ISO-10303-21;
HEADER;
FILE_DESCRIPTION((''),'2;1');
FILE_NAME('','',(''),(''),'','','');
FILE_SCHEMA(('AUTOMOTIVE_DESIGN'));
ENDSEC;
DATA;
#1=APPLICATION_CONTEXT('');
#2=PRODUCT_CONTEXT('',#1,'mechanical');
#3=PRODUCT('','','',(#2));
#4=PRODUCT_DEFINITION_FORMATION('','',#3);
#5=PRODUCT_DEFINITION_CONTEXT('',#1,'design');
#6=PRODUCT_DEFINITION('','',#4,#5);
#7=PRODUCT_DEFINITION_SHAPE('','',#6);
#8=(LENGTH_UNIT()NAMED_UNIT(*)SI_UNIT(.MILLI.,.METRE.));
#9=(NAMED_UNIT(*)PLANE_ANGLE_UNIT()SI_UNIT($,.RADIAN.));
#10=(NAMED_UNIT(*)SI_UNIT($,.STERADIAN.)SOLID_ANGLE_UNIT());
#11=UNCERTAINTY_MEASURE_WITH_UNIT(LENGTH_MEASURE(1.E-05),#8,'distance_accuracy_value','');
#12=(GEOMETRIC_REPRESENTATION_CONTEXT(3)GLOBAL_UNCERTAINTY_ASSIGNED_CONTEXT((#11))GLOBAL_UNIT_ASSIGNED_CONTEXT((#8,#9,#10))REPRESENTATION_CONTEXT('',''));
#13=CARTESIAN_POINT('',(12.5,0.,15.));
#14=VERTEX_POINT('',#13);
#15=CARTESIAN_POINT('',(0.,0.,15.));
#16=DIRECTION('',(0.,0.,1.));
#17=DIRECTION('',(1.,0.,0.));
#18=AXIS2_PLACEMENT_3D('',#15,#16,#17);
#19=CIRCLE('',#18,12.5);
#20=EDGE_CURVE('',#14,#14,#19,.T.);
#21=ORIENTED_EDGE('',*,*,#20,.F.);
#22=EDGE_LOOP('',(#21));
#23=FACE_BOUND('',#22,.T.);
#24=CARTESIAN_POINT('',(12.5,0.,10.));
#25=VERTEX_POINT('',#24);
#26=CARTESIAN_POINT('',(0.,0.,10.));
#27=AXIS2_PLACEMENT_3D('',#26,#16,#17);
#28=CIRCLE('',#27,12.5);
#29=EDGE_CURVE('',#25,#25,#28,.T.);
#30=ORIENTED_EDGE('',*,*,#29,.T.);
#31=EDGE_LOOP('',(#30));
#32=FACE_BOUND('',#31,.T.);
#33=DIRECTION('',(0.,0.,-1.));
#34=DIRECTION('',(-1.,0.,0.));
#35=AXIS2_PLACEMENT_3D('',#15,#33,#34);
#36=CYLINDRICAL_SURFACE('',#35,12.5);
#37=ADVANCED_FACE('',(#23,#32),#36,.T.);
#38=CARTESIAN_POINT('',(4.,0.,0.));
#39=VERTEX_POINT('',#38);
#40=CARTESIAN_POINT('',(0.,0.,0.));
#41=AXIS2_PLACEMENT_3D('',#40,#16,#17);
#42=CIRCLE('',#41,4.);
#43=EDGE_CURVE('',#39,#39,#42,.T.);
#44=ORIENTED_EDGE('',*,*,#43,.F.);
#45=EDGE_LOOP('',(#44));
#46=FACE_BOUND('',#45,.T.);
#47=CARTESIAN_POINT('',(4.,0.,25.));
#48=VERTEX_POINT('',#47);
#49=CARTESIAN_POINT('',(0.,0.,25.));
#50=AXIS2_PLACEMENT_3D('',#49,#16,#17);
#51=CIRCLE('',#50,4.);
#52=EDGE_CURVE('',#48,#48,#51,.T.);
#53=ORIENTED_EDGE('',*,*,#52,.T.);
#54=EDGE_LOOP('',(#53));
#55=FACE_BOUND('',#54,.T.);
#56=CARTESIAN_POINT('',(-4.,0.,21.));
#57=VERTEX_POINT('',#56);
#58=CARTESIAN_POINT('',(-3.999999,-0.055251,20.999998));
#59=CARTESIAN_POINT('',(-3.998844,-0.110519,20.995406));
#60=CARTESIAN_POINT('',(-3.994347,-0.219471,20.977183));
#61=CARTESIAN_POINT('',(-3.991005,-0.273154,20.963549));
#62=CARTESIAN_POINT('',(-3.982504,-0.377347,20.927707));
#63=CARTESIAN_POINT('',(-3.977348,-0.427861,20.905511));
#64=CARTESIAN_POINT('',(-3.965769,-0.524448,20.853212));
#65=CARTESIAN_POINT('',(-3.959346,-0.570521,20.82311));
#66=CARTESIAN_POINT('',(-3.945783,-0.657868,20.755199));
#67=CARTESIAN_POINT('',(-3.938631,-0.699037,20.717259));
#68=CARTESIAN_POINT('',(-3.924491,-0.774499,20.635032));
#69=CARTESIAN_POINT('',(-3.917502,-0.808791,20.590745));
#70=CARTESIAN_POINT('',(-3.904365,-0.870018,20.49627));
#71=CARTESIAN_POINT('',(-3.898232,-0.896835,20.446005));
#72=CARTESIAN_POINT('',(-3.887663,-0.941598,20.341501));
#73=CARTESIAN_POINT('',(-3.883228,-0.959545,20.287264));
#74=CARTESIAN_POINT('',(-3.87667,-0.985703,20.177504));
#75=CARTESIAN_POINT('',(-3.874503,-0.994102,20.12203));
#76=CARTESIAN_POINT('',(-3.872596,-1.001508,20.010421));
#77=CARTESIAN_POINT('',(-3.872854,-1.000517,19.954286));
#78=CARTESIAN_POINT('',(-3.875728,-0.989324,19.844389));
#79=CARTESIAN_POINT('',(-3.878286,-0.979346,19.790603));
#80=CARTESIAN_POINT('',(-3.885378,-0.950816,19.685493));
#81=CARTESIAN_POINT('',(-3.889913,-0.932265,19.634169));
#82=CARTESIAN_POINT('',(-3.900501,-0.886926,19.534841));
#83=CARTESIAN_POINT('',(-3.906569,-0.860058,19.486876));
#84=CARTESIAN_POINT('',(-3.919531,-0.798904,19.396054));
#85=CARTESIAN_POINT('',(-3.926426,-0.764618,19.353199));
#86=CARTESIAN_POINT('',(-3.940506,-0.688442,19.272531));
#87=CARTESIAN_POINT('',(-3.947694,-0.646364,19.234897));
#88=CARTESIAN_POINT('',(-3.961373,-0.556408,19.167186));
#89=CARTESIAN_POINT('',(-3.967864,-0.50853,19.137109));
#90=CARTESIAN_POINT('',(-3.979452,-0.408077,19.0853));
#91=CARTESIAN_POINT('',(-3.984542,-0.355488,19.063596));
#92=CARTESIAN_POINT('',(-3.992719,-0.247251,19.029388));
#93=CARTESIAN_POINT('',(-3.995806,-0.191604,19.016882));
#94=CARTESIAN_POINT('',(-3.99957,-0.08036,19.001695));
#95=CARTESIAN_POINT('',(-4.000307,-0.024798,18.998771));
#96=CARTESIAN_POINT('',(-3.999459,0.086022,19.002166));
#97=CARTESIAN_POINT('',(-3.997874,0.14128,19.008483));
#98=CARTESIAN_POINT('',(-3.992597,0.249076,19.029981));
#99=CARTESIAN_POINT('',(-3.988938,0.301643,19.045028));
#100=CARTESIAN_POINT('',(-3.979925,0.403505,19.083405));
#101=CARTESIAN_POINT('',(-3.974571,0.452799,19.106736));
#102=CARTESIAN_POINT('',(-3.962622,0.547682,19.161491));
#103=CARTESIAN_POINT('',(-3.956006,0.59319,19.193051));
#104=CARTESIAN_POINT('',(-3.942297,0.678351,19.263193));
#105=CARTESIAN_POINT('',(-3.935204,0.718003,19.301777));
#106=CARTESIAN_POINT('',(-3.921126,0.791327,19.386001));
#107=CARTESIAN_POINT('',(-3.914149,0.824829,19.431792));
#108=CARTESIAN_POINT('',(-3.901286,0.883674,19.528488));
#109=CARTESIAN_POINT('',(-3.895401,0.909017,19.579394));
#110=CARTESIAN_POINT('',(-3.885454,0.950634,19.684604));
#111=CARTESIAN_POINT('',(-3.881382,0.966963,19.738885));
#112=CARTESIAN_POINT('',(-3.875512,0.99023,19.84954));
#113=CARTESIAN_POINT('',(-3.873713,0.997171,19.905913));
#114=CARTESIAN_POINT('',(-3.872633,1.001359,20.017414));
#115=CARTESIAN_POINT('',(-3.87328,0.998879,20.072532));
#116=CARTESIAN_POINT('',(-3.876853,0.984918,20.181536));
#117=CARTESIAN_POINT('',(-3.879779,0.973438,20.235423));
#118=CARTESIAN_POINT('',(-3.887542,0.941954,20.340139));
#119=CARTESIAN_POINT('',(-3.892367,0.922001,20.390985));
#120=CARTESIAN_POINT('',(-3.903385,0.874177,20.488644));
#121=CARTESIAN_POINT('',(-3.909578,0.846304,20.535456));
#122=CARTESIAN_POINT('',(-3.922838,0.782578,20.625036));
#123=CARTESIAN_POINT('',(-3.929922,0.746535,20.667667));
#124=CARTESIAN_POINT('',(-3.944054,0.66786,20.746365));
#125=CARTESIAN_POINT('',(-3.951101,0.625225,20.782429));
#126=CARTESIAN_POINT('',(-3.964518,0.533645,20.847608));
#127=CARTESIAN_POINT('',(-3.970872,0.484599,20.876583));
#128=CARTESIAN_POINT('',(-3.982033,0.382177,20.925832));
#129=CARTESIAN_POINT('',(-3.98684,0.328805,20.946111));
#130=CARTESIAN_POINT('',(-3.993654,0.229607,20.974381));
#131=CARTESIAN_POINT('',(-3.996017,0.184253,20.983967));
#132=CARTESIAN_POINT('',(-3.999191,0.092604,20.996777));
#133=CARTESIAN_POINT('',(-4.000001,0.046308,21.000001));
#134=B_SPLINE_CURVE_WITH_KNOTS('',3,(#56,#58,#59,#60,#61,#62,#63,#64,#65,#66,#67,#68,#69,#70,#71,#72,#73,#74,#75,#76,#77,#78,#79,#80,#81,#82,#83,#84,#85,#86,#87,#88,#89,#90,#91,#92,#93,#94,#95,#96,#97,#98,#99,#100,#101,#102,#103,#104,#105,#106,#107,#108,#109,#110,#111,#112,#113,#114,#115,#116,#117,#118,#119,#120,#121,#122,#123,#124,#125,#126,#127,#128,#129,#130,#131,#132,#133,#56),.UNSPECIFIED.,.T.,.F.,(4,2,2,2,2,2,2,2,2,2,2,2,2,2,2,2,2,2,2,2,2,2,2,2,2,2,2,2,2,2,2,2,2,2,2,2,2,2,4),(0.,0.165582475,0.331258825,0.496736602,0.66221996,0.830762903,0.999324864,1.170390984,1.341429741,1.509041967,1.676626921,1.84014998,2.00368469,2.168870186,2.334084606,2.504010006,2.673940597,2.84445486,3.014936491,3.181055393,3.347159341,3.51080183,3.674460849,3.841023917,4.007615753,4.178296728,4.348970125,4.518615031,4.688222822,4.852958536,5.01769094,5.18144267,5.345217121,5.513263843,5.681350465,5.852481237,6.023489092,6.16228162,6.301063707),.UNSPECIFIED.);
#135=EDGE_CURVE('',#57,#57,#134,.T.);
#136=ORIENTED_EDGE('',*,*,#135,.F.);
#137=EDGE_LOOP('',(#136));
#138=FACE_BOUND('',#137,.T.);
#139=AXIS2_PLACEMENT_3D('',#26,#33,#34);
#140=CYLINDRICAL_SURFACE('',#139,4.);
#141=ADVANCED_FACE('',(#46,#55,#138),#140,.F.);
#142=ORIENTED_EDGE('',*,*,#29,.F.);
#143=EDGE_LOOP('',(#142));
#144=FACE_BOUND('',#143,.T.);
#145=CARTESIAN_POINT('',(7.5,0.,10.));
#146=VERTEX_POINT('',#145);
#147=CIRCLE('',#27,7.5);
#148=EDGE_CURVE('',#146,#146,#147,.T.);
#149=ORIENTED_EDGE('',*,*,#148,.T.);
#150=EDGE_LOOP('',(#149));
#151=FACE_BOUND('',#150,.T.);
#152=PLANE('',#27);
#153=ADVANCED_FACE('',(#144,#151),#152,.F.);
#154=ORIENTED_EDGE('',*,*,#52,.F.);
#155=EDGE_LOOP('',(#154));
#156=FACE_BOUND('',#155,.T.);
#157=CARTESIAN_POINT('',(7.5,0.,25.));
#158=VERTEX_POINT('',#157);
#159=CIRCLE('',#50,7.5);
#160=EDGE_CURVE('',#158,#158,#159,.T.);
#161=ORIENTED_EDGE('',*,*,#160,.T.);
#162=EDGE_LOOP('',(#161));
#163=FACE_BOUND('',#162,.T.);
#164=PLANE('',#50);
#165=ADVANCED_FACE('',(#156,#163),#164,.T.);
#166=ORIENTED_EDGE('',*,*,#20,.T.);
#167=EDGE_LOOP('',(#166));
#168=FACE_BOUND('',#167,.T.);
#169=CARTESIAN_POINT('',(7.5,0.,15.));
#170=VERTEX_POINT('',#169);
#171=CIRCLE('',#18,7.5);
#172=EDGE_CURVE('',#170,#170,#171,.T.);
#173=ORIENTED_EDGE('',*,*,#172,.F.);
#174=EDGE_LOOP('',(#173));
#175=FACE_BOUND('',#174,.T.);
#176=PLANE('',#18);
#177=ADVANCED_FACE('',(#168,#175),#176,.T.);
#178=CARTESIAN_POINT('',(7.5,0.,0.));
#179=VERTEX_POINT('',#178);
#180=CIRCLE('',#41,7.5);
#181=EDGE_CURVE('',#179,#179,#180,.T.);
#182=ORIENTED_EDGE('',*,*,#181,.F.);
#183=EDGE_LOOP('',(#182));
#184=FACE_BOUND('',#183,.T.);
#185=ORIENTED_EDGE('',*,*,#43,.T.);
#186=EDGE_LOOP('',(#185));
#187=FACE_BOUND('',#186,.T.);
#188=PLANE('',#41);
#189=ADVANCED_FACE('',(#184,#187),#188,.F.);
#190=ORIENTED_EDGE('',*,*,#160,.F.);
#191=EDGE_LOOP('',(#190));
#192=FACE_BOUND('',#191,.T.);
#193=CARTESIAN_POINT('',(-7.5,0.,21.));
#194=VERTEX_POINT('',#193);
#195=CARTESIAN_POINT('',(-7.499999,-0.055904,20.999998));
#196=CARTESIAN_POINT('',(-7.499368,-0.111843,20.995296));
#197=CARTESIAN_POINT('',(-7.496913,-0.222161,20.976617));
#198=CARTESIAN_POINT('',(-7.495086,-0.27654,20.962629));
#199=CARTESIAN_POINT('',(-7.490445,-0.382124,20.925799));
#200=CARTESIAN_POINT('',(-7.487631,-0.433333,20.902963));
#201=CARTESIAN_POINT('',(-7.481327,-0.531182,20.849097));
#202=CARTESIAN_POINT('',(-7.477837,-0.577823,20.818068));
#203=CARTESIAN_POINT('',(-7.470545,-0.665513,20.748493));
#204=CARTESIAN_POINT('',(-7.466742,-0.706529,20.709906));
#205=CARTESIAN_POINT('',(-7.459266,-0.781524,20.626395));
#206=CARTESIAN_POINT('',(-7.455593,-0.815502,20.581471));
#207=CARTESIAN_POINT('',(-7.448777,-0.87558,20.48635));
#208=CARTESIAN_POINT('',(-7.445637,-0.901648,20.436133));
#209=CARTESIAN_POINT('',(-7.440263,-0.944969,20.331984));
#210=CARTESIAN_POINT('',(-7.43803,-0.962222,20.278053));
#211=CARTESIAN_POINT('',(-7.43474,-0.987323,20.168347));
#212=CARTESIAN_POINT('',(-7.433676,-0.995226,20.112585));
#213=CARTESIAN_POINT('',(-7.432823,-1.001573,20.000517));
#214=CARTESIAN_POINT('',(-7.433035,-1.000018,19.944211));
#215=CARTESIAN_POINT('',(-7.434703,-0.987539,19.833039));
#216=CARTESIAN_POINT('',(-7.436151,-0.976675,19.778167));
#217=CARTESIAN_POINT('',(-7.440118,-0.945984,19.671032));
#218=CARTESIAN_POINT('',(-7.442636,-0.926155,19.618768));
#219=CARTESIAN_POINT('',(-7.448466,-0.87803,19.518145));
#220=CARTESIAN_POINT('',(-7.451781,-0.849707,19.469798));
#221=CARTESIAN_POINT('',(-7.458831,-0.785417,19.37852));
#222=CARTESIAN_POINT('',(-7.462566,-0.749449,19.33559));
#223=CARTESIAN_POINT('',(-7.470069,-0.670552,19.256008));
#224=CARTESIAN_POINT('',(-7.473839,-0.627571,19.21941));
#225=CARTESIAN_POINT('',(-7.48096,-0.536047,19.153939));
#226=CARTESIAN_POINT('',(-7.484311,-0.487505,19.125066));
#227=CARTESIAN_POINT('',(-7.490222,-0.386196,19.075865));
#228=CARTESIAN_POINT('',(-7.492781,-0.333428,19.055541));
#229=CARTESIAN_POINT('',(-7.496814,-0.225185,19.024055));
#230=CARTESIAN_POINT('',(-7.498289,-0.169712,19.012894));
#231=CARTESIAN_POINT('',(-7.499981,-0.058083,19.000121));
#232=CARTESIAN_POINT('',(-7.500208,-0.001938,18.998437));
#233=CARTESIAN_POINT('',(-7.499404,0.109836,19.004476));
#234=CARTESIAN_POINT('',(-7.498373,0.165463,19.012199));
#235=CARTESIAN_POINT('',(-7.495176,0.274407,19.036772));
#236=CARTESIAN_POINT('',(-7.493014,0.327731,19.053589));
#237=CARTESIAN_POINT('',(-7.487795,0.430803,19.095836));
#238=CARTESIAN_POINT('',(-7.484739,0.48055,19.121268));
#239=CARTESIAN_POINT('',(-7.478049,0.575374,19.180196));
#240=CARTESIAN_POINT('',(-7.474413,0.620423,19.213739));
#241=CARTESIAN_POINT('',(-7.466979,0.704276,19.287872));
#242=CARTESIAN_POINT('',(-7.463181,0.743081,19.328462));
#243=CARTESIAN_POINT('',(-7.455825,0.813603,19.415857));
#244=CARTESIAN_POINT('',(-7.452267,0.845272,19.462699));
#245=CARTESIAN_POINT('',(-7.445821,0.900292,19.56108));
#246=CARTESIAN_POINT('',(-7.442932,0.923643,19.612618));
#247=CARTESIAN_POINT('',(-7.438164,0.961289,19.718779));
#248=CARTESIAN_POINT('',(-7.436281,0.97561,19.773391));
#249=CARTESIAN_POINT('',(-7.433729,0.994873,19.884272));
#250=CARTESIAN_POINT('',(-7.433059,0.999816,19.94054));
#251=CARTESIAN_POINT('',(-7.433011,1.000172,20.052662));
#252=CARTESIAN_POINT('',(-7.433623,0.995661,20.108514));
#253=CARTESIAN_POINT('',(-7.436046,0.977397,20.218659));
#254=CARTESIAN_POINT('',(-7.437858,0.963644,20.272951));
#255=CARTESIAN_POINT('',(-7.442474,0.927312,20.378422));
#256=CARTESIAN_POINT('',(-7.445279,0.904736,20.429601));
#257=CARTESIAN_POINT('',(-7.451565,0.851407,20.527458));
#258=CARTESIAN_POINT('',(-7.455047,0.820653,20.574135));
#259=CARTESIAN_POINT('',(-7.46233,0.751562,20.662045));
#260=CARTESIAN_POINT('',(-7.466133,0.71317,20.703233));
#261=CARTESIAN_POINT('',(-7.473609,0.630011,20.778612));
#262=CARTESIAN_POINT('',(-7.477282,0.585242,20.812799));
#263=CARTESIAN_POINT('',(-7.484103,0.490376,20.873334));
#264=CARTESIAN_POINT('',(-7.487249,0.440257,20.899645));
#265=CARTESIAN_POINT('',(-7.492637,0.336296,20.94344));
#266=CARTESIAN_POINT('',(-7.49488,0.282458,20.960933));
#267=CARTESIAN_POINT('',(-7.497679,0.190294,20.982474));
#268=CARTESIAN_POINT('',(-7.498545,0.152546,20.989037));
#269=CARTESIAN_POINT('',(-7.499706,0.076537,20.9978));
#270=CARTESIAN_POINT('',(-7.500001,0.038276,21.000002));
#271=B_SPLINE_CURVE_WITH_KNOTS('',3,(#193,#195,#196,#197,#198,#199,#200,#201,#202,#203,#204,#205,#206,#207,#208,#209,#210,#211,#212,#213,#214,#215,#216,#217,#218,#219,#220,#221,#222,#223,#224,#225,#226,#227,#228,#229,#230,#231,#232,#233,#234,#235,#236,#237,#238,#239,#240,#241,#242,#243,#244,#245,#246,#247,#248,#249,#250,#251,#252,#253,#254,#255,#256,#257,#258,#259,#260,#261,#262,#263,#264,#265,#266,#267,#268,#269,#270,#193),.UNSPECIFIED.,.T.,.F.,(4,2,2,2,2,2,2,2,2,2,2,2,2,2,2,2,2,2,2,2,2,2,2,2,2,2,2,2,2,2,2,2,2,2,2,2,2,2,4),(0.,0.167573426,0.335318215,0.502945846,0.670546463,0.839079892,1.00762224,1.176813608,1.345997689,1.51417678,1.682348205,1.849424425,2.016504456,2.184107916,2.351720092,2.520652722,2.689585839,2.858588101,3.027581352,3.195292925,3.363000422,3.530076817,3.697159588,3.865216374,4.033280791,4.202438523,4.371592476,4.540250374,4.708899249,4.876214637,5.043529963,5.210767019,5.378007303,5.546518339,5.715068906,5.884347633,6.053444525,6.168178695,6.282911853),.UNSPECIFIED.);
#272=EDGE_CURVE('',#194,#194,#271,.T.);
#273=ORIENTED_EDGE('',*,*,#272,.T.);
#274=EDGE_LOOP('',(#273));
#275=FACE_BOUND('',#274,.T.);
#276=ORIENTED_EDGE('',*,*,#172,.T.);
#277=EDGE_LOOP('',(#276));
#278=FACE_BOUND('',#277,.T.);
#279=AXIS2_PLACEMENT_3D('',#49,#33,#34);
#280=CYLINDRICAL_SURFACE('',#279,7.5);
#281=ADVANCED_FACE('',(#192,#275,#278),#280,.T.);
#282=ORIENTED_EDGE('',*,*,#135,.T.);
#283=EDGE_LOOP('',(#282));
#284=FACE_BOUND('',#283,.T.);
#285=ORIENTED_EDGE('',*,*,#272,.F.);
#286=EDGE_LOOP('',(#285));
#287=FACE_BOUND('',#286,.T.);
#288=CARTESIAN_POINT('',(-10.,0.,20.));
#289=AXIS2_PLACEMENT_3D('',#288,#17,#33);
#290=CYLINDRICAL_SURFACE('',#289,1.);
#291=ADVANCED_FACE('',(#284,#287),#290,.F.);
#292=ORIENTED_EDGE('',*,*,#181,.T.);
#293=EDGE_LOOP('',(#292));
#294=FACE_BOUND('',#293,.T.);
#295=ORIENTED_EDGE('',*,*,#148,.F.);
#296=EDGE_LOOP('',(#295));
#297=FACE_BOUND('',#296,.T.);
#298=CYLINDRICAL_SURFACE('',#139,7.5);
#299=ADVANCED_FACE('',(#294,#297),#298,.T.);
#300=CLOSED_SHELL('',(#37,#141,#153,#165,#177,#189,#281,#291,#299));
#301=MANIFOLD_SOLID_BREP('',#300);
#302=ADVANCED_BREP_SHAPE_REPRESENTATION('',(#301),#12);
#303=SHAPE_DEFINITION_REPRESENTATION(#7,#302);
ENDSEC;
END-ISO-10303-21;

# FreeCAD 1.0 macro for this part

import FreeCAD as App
import Part
import Sketcher
from FreeCAD import Vector

doc = App.newDocument("Part")
params = doc.addObject("Spreadsheet::Sheet", "Params")
for row, (alias, value) in enumerate([
    ("sketch1_diameter", "15 mm"),
    ("sketch1_diameter2", "8 mm"),
    ("pad1_length", "10 mm"),
    ("sketch2_diameter", "25 mm"),
    ("sketch2_diameter2", "8 mm"),
    ("pad2_length", "5 mm"),
    ("sketch3_diameter", "15 mm"),
    ("sketch3_diameter2", "8 mm"),
    ("pad3_length", "10 mm"),
    ("sketch4_diameter", "2 mm"),
    ("pocket1_length", "10 mm"),
], start=1):
    params.set(f"A{row}", alias)
    params.set(f"B{row}", "=" + value)
    params.setAlias(f"B{row}", alias)

body = doc.addObject("PartDesign::Body", "Body")

sketch1 = doc.addObject("Sketcher::SketchObject", "Sketch")
body.addObject(sketch1)
sketch1.AttachmentSupport = (doc.XY_Plane, [""])
sketch1.MapMode = "FlatFace"
sketch1.addGeometry(Part.Circle(Vector(0, 0, 0), Vector(0, 0, 1), 7.5), False)
sketch1.addGeometry(Part.Circle(Vector(0, 0, 0), Vector(0, 0, 1), 4), False)
sketch1.addConstraint(Sketcher.Constraint("Coincident", 0, 3, -1, 1))
sketch1.addConstraint(Sketcher.Constraint("Coincident", 1, 3, -1, 1))
sketch1.addConstraint(Sketcher.Constraint("Diameter", 0, 15.0))
sketch1.addConstraint(Sketcher.Constraint("Diameter", 1, 8.0))
sketch1.setExpression("Constraints[2]", "Params.sketch1_diameter")
sketch1.setExpression("Constraints[3]", "Params.sketch1_diameter2")
pad1 = doc.addObject("PartDesign::Pad", "Pad")
body.addObject(pad1)
pad1.Profile = sketch1
pad1.setExpression("Length", "Params.pad1_length")

sketch2 = doc.addObject("Sketcher::SketchObject", "Sketch001")
body.addObject(sketch2)
sketch2.AttachmentSupport = (doc.XY_Plane, [""])
sketch2.MapMode = "FlatFace"
sketch2.AttachmentOffset = App.Placement(Vector(0, 0, 10), App.Rotation())
sketch2.addGeometry(Part.Circle(Vector(0, 0, 0), Vector(0, 0, 1), 12.5), False)
sketch2.addGeometry(Part.Circle(Vector(0, 0, 0), Vector(0, 0, 1), 4), False)
sketch2.addConstraint(Sketcher.Constraint("Coincident", 0, 3, -1, 1))
sketch2.addConstraint(Sketcher.Constraint("Coincident", 1, 3, -1, 1))
sketch2.addConstraint(Sketcher.Constraint("Diameter", 0, 25.0))
sketch2.addConstraint(Sketcher.Constraint("Diameter", 1, 8.0))
sketch2.setExpression("Constraints[2]", "Params.sketch2_diameter")
sketch2.setExpression("Constraints[3]", "Params.sketch2_diameter2")
pad2 = doc.addObject("PartDesign::Pad", "Pad001")
body.addObject(pad2)
pad2.Profile = sketch2
pad2.setExpression("Length", "Params.pad2_length")

sketch3 = doc.addObject("Sketcher::SketchObject", "Sketch002")
body.addObject(sketch3)
sketch3.AttachmentSupport = (doc.XY_Plane, [""])
sketch3.MapMode = "FlatFace"
sketch3.AttachmentOffset = App.Placement(Vector(0, 0, 15), App.Rotation())
sketch3.addGeometry(Part.Circle(Vector(0, 0, 0), Vector(0, 0, 1), 7.5), False)
sketch3.addGeometry(Part.Circle(Vector(0, 0, 0), Vector(0, 0, 1), 4), False)
sketch3.addConstraint(Sketcher.Constraint("Coincident", 0, 3, -1, 1))
sketch3.addConstraint(Sketcher.Constraint("Coincident", 1, 3, -1, 1))
sketch3.addConstraint(Sketcher.Constraint("Diameter", 0, 15.0))
sketch3.addConstraint(Sketcher.Constraint("Diameter", 1, 8.0))
sketch3.setExpression("Constraints[2]", "Params.sketch3_diameter")
sketch3.setExpression("Constraints[3]", "Params.sketch3_diameter2")
pad3 = doc.addObject("PartDesign::Pad", "Pad002")
body.addObject(pad3)
pad3.Profile = sketch3
pad3.setExpression("Length", "Params.pad3_length")

sketch4 = doc.addObject("Sketcher::SketchObject", "Sketch003")
body.addObject(sketch4)
sketch4.AttachmentSupport = (doc.YZ_Plane, [""])
sketch4.MapMode = "FlatFace"
sketch4.addGeometry(Part.Circle(Vector(0, 20, 0), Vector(0, 0, 1), 1), False)
sketch4.addConstraint(Sketcher.Constraint("PointOnObject", 0, 3, -2))
sketch4.addConstraint(Sketcher.Constraint("Diameter", 0, 2.0))
sketch4.addConstraint(Sketcher.Constraint("DistanceY", -1, 1, 0, 3, 20.0))
sketch4.setExpression("Constraints[1]", "Params.sketch4_diameter")
pocket1 = doc.addObject("PartDesign::Pocket", "Pocket")
body.addObject(pocket1)
pocket1.Profile = sketch4
pocket1.setExpression("Length", "Params.pocket1_length")

doc.recompute()
